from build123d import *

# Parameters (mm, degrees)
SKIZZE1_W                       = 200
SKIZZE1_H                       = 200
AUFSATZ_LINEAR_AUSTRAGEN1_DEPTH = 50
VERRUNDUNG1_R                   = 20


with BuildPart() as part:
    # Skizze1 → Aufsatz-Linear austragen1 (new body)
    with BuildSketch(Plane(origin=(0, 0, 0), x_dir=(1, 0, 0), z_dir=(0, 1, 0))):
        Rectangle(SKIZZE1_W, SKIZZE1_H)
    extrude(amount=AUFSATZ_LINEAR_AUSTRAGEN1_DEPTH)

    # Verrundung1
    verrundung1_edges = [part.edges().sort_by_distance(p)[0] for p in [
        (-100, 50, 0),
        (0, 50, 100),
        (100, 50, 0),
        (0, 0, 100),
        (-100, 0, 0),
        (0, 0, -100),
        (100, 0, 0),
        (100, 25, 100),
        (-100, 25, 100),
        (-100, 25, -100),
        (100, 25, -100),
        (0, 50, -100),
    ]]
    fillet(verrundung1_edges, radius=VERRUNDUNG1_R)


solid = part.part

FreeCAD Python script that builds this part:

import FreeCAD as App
import Part
import Sketcher

V = App.Vector


def add_polygon(sketch, points):
    """Adds a closed chain of lines whose ends are joined by coincident constraints."""
    first, n = sketch.GeometryCount, len(points)
    for a, b in zip(points, points[1:] + points[:1]):
        sketch.addGeometry(Part.LineSegment(App.Vector(*a, 0), App.Vector(*b, 0)), False)
    for i in range(n):
        sketch.addConstraint(Sketcher.Constraint("Coincident", first + i, 2, first + (i + 1) % n, 1))

doc = App.newDocument("Part")
params = doc.addObject("Spreadsheet::Sheet", "Params")
for row, (alias, value) in enumerate([
    ("sketch1_width", "200 mm"),
    ("pad1_length", "50 mm"),
    ("fillet_radius", "20 mm"),
], start=1):
    params.set(f"A{row}", alias)
    params.set(f"B{row}", "=" + value)
    params.setAlias(f"B{row}", alias)

body = doc.addObject("PartDesign::Body", "Body")

# Sketch on XZ plane
sketch1 = body.newObject("Sketcher::SketchObject", "Sketch")
sketch1.AttachmentSupport = (doc.getObject("XZ_Plane"), [""])
sketch1.MapMode = "FlatFace"
add_polygon(sketch1, [(-100, -100), (-100, 100), (100, 100), (100, -100)])  # lines 0-3
sketch1.addConstraint(Sketcher.Constraint("Vertical", 0))
sketch1.addConstraint(Sketcher.Constraint("Horizontal", 1))
sketch1.addConstraint(Sketcher.Constraint("Vertical", 2))
sketch1.addConstraint(Sketcher.Constraint("Horizontal", 3))
sketch1.addConstraint(Sketcher.Constraint("Symmetric", 0, 2, 2, 2, -1, 1))
sketch1.addConstraint(Sketcher.Constraint("Equal", 3, 0))
sketch1.addConstraint(Sketcher.Constraint("DistanceX", 1, 1, 1, 2, 200.0))
sketch1.setExpression("Constraints[10]", "Params.sketch1_width")
pad1 = body.newObject("PartDesign::Pad", "Pad")
pad1.Profile = sketch1
pad1.setExpression("Length", "Params.pad1_length")
pad1.Reversed = True
doc.recompute()

fillet = body.newObject("PartDesign::Fillet", "Fillet")
fillet.Base = (pad1, ["Edge1"])
fillet.UseAllEdges = True
fillet.setExpression("Radius", "Params.fillet_radius")

doc.recompute()
